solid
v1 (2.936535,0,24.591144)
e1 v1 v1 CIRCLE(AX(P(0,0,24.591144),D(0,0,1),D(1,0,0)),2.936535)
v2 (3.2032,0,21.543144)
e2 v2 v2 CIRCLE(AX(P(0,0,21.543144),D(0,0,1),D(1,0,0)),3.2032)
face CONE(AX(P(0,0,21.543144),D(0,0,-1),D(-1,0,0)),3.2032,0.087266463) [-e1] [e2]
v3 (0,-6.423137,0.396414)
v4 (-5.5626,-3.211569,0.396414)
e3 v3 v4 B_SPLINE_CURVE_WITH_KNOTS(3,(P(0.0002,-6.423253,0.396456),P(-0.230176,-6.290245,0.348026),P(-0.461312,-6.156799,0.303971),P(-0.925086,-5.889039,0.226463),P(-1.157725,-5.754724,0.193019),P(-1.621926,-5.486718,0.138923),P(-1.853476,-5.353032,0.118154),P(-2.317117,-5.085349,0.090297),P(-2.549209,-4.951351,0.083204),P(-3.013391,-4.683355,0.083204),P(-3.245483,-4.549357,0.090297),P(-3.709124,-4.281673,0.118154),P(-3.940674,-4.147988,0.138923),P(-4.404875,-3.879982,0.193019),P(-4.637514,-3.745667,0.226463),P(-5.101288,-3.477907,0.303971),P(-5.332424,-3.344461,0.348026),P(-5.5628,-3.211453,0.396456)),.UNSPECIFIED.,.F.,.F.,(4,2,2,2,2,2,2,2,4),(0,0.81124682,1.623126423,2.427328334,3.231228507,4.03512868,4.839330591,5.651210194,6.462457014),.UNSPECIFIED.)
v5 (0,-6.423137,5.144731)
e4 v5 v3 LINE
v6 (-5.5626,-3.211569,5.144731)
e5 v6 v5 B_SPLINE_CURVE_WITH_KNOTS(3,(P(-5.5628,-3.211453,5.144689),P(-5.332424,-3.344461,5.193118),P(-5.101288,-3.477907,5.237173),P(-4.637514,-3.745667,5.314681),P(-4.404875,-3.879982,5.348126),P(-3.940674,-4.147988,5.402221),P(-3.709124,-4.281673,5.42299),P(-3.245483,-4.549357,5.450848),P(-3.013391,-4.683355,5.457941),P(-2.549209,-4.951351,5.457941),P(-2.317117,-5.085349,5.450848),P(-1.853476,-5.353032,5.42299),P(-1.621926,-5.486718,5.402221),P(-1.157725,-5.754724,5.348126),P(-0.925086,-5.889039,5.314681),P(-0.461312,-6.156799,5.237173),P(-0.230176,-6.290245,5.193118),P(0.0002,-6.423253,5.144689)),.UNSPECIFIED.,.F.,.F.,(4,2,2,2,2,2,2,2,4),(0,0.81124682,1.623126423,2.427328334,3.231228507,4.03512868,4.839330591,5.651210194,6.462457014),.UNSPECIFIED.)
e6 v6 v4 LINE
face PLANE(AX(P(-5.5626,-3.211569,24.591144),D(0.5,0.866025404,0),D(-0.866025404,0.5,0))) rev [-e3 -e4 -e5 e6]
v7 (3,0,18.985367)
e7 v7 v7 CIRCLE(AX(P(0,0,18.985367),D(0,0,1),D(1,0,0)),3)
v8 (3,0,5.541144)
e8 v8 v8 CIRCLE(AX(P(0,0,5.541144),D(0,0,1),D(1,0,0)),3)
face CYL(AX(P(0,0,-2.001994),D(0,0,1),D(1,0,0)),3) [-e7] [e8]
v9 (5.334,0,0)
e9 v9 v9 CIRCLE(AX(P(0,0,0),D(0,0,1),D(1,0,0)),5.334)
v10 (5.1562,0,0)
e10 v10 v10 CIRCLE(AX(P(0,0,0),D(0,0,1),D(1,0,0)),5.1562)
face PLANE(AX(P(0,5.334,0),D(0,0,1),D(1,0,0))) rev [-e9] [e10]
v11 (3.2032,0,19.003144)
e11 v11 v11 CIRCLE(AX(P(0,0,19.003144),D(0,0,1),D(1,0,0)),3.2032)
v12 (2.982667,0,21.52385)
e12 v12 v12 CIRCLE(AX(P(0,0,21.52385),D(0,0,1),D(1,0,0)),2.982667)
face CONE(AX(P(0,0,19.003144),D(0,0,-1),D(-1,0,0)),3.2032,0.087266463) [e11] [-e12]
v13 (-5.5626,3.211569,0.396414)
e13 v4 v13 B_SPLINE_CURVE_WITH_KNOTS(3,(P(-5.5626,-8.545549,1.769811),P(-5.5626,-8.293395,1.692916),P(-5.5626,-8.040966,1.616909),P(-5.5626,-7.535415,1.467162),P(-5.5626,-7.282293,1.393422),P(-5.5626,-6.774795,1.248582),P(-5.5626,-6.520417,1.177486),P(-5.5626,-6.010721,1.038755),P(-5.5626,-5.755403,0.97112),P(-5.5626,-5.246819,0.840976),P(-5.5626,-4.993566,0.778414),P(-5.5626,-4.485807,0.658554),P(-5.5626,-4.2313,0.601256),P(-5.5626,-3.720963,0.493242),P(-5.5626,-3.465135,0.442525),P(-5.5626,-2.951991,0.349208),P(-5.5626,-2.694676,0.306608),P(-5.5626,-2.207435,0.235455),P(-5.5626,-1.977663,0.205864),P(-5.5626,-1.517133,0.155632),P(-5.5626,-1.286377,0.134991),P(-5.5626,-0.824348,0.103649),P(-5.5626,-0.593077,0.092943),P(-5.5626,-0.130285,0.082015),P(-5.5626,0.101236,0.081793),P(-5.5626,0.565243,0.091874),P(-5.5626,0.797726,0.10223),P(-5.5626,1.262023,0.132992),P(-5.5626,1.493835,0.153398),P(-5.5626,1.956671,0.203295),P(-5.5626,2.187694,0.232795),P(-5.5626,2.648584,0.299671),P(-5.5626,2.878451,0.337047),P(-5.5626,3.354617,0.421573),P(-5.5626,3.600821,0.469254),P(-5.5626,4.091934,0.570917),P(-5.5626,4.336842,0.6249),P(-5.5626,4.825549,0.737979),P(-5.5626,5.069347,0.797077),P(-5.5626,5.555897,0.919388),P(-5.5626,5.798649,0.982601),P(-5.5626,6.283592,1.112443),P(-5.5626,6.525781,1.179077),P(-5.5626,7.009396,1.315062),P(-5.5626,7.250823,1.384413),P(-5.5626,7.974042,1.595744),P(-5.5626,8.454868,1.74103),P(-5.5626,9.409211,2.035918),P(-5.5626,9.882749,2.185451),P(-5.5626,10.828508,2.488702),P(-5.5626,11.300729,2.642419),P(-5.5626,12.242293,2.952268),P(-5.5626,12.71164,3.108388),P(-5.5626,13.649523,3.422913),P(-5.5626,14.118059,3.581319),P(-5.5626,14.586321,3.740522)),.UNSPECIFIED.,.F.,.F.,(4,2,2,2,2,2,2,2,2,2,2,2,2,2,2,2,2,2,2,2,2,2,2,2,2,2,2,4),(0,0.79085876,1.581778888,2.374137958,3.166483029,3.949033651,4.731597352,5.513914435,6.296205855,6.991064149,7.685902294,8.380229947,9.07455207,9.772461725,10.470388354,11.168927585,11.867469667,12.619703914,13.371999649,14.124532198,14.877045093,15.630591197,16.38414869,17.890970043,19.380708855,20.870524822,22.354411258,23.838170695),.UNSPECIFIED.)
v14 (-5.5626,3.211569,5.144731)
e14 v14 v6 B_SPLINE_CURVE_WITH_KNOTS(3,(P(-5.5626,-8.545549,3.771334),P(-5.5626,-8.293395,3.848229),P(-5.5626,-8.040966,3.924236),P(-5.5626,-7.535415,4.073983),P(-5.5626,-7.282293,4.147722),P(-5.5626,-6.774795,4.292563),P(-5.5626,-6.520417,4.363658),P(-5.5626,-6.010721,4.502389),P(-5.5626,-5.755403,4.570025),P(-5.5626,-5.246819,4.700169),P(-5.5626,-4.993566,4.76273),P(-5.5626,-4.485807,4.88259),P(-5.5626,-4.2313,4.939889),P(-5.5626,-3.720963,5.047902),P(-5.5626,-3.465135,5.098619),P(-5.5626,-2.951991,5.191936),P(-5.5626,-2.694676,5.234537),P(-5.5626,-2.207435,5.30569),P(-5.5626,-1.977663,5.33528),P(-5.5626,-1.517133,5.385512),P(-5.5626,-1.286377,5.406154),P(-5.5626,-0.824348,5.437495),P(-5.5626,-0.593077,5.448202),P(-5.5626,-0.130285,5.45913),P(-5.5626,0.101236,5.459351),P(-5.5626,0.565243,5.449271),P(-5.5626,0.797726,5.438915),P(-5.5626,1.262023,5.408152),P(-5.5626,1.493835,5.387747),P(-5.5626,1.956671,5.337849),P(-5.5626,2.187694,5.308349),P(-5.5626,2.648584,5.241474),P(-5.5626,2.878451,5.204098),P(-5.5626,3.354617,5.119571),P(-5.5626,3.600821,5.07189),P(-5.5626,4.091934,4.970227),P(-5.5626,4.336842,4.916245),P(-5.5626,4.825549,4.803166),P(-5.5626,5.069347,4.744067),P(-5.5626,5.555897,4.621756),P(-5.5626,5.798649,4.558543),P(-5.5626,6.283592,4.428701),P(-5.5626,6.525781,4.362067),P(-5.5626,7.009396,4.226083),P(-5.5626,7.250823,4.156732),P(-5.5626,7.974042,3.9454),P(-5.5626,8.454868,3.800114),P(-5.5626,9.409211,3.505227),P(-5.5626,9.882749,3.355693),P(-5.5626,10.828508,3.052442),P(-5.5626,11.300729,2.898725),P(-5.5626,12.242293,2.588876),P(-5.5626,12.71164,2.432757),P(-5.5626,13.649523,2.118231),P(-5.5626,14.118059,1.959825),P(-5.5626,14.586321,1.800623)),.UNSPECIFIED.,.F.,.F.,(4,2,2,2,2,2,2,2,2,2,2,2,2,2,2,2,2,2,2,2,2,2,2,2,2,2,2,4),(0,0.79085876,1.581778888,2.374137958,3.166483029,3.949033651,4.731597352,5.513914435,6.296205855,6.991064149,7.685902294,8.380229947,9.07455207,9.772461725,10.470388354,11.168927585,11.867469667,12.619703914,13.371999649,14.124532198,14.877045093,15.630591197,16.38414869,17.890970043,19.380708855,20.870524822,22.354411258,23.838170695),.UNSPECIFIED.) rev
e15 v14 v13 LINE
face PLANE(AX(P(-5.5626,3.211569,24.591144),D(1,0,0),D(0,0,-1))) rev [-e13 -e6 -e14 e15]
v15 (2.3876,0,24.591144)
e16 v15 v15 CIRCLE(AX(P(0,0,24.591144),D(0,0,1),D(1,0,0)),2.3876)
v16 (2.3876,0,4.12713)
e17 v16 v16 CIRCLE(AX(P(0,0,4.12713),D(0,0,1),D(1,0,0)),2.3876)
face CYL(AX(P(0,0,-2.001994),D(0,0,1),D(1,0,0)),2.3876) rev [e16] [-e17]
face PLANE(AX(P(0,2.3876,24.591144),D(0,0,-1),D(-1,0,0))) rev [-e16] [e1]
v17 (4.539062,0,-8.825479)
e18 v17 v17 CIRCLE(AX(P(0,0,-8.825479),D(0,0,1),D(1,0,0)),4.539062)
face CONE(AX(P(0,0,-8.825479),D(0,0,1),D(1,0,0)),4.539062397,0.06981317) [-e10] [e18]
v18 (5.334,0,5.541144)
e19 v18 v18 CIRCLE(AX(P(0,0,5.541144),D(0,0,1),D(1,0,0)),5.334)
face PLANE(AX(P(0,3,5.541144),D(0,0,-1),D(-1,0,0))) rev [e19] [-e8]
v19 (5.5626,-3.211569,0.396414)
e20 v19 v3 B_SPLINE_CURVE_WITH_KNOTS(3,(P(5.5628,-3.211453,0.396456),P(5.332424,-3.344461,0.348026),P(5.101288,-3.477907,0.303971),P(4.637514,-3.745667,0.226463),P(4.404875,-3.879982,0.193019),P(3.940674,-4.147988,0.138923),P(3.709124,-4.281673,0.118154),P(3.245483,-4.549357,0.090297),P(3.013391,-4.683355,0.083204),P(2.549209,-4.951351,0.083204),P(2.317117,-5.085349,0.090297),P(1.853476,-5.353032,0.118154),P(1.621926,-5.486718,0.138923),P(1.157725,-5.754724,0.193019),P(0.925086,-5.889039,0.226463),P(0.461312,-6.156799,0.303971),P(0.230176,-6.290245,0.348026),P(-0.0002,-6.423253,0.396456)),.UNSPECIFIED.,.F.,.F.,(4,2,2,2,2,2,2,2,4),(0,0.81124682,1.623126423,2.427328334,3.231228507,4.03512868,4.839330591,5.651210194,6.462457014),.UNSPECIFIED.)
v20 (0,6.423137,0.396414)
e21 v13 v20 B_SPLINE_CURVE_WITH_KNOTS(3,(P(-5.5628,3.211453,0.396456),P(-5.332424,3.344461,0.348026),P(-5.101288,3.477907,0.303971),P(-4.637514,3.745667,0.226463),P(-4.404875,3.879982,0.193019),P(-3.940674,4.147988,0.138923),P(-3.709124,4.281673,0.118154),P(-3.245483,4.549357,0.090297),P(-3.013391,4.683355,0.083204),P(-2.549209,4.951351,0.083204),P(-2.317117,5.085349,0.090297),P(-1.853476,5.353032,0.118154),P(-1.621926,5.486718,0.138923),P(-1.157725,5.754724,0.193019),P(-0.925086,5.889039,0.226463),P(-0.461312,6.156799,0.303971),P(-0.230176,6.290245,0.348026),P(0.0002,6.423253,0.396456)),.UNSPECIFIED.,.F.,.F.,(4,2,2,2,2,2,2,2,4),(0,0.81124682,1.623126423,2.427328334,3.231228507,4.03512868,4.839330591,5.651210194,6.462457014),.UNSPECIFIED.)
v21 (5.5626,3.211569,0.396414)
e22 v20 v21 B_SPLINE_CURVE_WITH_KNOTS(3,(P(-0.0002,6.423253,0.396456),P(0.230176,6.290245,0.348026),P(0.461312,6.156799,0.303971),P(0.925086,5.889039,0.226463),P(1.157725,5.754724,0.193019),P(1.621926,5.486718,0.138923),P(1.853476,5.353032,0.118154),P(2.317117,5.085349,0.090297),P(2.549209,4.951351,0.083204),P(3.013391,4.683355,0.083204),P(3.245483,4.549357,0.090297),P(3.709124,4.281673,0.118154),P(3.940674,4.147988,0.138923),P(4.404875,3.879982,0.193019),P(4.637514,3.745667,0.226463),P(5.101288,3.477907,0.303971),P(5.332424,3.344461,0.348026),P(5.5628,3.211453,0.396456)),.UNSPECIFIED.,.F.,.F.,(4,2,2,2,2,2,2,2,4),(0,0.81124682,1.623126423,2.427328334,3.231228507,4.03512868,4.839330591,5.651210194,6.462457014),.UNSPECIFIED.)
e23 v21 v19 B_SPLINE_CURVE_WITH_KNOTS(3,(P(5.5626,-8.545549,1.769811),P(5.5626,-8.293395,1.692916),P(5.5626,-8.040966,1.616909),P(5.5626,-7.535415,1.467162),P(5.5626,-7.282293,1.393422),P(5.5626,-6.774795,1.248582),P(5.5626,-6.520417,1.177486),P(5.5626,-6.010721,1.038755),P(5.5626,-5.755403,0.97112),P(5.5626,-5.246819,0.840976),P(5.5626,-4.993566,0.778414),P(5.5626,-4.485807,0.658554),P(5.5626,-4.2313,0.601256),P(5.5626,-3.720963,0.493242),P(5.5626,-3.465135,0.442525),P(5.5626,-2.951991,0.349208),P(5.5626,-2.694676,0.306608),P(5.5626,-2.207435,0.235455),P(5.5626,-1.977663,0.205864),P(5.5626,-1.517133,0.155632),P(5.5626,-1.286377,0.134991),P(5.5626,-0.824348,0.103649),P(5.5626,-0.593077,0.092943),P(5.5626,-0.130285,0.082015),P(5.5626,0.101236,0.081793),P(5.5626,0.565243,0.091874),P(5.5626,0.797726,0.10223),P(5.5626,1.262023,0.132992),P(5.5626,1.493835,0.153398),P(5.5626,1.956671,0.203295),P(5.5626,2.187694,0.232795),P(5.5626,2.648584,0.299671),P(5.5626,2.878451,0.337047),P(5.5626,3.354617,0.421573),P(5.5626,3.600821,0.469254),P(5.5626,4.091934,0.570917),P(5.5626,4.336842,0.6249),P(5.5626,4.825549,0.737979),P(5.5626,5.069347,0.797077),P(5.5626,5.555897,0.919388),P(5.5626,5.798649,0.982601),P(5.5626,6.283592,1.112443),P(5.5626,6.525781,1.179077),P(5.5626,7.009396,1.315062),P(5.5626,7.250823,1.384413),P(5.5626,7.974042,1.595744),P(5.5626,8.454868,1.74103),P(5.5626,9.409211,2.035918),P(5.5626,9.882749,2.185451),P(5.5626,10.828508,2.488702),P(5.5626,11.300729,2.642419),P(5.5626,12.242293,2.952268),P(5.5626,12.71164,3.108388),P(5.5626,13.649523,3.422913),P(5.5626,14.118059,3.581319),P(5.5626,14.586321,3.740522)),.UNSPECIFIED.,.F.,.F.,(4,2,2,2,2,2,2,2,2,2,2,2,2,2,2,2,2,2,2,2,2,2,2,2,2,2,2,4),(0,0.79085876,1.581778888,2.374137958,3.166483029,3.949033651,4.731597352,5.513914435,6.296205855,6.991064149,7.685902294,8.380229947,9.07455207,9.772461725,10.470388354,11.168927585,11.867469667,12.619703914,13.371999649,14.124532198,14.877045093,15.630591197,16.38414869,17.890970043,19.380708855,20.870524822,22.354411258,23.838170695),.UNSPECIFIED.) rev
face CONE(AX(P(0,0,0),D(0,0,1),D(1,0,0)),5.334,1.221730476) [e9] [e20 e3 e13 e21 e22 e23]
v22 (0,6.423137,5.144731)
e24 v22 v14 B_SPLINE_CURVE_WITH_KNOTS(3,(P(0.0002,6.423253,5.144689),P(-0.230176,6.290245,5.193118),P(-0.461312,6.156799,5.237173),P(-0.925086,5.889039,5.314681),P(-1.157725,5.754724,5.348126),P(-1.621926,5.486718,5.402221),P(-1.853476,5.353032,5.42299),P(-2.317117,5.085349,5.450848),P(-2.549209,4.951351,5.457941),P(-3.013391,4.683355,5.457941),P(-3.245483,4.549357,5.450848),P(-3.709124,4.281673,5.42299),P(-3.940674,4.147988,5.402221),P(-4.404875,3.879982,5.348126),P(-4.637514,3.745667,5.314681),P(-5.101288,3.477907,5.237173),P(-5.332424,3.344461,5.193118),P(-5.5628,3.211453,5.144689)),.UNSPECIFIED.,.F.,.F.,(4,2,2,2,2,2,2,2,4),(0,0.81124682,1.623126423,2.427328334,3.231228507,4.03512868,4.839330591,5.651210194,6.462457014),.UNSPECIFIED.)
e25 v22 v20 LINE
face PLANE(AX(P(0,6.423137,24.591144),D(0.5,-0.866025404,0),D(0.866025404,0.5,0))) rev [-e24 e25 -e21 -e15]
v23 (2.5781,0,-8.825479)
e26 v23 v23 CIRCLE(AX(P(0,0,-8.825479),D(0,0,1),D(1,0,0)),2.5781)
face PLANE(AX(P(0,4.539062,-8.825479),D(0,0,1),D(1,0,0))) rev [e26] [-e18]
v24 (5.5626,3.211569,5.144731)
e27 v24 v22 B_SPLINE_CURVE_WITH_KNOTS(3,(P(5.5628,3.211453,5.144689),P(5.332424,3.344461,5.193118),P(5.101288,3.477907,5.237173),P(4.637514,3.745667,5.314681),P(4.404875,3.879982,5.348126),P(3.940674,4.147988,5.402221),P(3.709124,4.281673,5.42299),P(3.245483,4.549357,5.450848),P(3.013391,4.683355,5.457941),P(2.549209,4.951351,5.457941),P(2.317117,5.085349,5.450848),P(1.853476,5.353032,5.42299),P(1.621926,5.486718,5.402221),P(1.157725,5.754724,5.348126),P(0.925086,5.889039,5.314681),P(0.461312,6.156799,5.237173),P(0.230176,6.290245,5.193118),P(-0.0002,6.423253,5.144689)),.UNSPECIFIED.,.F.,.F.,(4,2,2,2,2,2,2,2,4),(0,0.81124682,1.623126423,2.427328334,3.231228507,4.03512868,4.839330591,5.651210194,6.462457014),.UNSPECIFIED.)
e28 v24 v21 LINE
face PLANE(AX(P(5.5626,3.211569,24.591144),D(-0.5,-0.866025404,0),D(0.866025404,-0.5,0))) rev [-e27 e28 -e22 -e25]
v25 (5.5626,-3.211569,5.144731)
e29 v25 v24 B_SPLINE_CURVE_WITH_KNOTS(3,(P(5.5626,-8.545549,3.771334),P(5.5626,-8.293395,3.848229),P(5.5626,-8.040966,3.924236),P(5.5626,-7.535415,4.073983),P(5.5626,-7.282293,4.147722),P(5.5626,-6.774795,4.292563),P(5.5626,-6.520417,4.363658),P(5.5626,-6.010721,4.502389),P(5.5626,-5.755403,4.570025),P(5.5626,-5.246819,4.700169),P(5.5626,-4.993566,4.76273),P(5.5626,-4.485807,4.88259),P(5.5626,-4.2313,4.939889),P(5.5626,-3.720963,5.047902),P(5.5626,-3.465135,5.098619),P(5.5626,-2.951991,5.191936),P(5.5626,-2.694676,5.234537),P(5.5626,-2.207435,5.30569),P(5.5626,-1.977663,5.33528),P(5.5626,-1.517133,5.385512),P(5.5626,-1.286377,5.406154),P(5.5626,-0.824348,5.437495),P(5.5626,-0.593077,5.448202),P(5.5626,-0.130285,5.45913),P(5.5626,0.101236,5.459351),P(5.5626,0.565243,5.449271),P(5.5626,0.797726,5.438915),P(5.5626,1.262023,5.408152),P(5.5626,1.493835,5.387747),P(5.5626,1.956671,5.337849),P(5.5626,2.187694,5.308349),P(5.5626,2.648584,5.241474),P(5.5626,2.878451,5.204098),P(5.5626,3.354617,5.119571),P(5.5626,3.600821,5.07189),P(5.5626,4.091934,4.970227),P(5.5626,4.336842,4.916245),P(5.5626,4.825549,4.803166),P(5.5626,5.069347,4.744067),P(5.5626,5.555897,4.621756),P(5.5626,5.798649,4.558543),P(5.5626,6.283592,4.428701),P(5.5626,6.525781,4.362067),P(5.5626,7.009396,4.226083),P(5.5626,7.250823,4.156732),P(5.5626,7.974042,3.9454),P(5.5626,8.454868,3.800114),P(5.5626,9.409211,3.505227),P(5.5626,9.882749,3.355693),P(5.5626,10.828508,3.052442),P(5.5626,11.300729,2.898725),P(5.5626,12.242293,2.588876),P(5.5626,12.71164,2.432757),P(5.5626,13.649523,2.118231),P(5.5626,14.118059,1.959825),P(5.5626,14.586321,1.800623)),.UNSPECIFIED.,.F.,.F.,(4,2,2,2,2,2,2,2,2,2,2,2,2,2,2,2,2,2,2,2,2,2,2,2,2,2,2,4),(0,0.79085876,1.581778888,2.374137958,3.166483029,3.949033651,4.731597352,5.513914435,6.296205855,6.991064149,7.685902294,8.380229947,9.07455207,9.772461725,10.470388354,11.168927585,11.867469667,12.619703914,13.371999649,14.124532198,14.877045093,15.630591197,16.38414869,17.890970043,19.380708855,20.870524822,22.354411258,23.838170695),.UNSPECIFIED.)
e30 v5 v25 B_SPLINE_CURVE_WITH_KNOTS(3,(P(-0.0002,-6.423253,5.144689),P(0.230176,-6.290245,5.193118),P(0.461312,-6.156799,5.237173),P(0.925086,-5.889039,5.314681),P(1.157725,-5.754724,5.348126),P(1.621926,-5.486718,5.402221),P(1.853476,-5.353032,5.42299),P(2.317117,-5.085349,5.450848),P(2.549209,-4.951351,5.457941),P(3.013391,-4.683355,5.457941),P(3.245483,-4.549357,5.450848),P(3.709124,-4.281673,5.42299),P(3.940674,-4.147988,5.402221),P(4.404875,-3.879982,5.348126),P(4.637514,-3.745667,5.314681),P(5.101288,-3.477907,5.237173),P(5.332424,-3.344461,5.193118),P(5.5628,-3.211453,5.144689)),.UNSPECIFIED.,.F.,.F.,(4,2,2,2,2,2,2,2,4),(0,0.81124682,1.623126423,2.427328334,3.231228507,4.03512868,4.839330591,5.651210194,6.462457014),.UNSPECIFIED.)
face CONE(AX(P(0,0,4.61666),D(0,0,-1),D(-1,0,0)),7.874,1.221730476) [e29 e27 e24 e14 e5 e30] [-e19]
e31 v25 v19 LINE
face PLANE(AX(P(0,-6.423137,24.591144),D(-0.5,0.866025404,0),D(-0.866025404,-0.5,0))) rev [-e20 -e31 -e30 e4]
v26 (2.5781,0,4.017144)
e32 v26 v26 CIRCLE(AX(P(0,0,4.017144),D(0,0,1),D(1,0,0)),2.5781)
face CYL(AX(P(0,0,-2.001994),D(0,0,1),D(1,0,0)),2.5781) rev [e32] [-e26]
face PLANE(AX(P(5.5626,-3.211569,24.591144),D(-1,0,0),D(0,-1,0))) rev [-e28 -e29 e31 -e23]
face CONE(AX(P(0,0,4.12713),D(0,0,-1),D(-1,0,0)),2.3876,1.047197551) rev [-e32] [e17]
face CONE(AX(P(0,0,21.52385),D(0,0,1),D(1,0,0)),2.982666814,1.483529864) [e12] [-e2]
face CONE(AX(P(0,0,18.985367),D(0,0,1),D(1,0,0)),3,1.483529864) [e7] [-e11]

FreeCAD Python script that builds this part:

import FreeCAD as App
import Part
import Sketcher
Q = App.Units.Quantity


def add_polygon(sketch, points):
    """Adds a closed chain of lines whose ends are joined by coincident constraints."""
    first, n = sketch.GeometryCount, len(points)
    for a, b in zip(points, points[1:] + points[:1]):
        sketch.addGeometry(Part.LineSegment(App.Vector(*a, 0), App.Vector(*b, 0)), False)
    for i in range(n):
        sketch.addConstraint(Sketcher.Constraint("Coincident", first + i, 2, first + (i + 1) % n, 1))

doc = App.newDocument("Part")
body = doc.addObject("PartDesign::Body", "Body")

sketch1 = body.newObject("Sketcher::SketchObject", "Sketch")
sketch1.AttachmentSupport = (doc.getObject("YZ_Plane"), [""])
sketch1.MapMode = "FlatFace"
add_polygon(sketch1, [(2.39, 24.59), (2.39, 4.13), (2.58, 4.02), (2.58, -8.83), (4.54, -8.83), (5.16, 0), (5.33, 0), (7.87, 0.92), (7.87, 4.62), (5.33, 5.54), (3, 5.54), (3, 18.99), (3.2, 19), (2.98, 21.52), (3.2, 21.54), (2.94, 24.59)])
sketch1.addConstraint(Sketcher.Constraint("Vertical", 0))
sketch1.addConstraint(Sketcher.Constraint("Vertical", 2))
sketch1.addConstraint(Sketcher.Constraint("Horizontal", 3))
sketch1.addConstraint(Sketcher.Constraint("Horizontal", 5))
sketch1.addConstraint(Sketcher.Constraint("Vertical", 7))
sketch1.addConstraint(Sketcher.Constraint("Horizontal", 9))
sketch1.addConstraint(Sketcher.Constraint("Vertical", 10))
sketch1.addConstraint(Sketcher.Constraint("Horizontal", 15))
sketch1.addConstraint(Sketcher.Constraint("PointOnObject", 4, 2, -1))
sketch1.addConstraint(Sketcher.Constraint("Perpendicular", 11, 12))
sketch1.addConstraint(Sketcher.Constraint("Perpendicular", 12, 13))
sketch1.addConstraint(Sketcher.Constraint("Perpendicular", 13, 14))
sketch1.addConstraint(Sketcher.Constraint("Vertical", 5, 2, 8, 2))
sketch1.addConstraint(Sketcher.Constraint("Vertical", 11, 2, 13, 2))
sketch1.addConstraint(Sketcher.Constraint("Equal", 6, 8))
sketch1.addConstraint(Sketcher.Constraint("Angle", 1, Q("-30 deg")))
sketch1.addConstraint(Sketcher.Constraint("Angle", 4, Q("86 deg")))
sketch1.addConstraint(Sketcher.Constraint("Angle", 6, Q("20 deg")))
sketch1.addConstraint(Sketcher.Constraint("Angle", 11, Q("5 deg")))
sketch1.addConstraint(Sketcher.Constraint("DistanceX", 5, 2, 6, 2, Q("0.1 in")))
sketch1.addConstraint(Sketcher.Constraint("DistanceY", 11, 2, 13, 2, Q("0.1 in")))
sketch1.addConstraint(Sketcher.Constraint("DistanceX", 5, 1, 5, 2, Q("0.007 in")))
sketch1.addConstraint(Sketcher.Constraint("DistanceX", -1, 1, 5, 2, Q("0.21 in")))
sketch1.addConstraint(Sketcher.Constraint("DistanceY", 1, 2, 8, 2, Q("0.06 in")))
sketch1.addConstraint(Sketcher.Constraint("DistanceY", 9, 2, 11, 2, Q("0.53 in")))
sketch1.addConstraint(Sketcher.Constraint("DistanceY", 13, 2, 14, 2, Q("0.12 in")))
sketch1.addConstraint(Sketcher.Constraint("DistanceY", 10, 1, 10, 2, Q("0.5293001 in")))
sketch1.addConstraint(Sketcher.Constraint("DistanceX", -1, 1, 0, 2, Q("0.094 in")))
sketch1.addConstraint(Sketcher.Constraint("DistanceX", 9, 2, 9, 1, 2.334))
sketch1.addConstraint(Sketcher.Constraint("DistanceX", -1, 1, 1, 2, Q("0.1015 in")))
sketch1.addConstraint(Sketcher.Constraint("Distance", 4, 8.84703))
sketch1.addConstraint(Sketcher.Constraint("DistanceY", 2, 2, 2, 1, 12.842623))
revolution = body.newObject("PartDesign::Revolution", "Revolution")
revolution.Profile = sketch1
revolution.ReferenceAxis = (sketch1, ["V_Axis"])
revolution.Angle = 360

sketch2 = body.newObject("Sketcher::SketchObject", "Sketch001")
sketch2.AttachmentSupport = (doc.getObject("XY_Plane"), [""])
sketch2.MapMode = "FlatFace"
add_polygon(sketch2, [(-13, 13), (-13, -13), (13, -13), (13, 13)])
add_polygon(sketch2, [(-6, 3), (0, 6), (6, 3), (6, -3), (0, -6), (-6, -3)])
sketch2.addConstraint(Sketcher.Constraint("Vertical", 0))
sketch2.addConstraint(Sketcher.Constraint("Horizontal", 1))
sketch2.addConstraint(Sketcher.Constraint("Vertical", 2))
sketch2.addConstraint(Sketcher.Constraint("Horizontal", 3))
sketch2.addConstraint(Sketcher.Constraint("Vertical", 6))
sketch2.addConstraint(Sketcher.Constraint("Vertical", 9))
sketch2.addConstraint(Sketcher.Constraint("Symmetric", 0, 2, 2, 2, -1, 1))
sketch2.addConstraint(Sketcher.Constraint("Symmetric", 4, 2, 7, 2, -1, 1))
sketch2.addConstraint(Sketcher.Constraint("Symmetric", 5, 2, 8, 2, -1, 1))
sketch2.addConstraint(Sketcher.Constraint("PointOnObject", 4, 2, -2))
sketch2.addConstraint(Sketcher.Constraint("Parallel", 4, 7))
sketch2.addConstraint(Sketcher.Constraint("Horizontal", 6, 2, 8, 2))
sketch2.addConstraint(Sketcher.Constraint("Equal", 3, 0))
sketch2.addConstraint(Sketcher.Constraint("Angle", 4, Q("30 deg")))
sketch2.addConstraint(Sketcher.Constraint("DistanceX", -1, 1, 5, 2, Q("0.219 in")))
sketch2.addConstraint(Sketcher.Constraint("DistanceX", 1, 1, 1, 2, 25.78))
sketch2.addConstraint(Sketcher.Constraint("DistanceY", 6, 2, 6, 1, 6.423137))
pocket1 = body.newObject("PartDesign::Pocket", "Pocket")
pocket1.Profile = sketch2
pocket1.Type = "ThroughAll"
pocket1.Reversed = True

doc.recompute()
